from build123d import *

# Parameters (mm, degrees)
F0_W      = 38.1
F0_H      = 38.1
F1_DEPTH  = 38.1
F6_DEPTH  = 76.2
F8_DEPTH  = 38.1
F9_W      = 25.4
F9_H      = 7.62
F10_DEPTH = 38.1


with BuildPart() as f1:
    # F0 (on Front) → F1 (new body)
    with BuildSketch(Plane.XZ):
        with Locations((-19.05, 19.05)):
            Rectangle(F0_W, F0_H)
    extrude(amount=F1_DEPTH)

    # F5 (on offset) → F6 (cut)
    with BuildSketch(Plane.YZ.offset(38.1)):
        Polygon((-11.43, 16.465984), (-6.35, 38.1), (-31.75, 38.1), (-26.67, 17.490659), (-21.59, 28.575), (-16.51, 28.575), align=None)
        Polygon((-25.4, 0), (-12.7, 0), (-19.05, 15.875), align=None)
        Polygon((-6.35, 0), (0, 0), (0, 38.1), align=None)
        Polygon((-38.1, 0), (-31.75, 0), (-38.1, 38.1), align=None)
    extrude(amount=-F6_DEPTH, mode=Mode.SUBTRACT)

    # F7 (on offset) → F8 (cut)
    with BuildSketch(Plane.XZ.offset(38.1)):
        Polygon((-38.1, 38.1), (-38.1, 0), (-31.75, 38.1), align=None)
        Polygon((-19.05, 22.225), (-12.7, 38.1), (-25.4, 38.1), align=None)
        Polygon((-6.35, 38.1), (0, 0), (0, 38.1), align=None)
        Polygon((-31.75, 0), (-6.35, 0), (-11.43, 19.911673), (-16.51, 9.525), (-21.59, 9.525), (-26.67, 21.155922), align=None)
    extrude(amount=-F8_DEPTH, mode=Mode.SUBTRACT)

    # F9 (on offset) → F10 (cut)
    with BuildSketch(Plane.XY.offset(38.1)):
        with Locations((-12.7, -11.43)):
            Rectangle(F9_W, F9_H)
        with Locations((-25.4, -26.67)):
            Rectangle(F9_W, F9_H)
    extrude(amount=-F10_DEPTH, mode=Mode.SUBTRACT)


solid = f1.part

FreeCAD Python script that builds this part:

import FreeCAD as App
import Part
import Sketcher
Q = App.Units.Quantity


def add_polygon(sketch, points):
    """Adds a closed chain of lines whose ends are joined by coincident constraints."""
    first, n = sketch.GeometryCount, len(points)
    for a, b in zip(points, points[1:] + points[:1]):
        sketch.addGeometry(Part.LineSegment(App.Vector(*a, 0), App.Vector(*b, 0)), False)
    for i in range(n):
        sketch.addConstraint(Sketcher.Constraint("Coincident", first + i, 2, first + (i + 1) % n, 1))

doc = App.newDocument("Part")
body = doc.addObject("PartDesign::Body", "Body")

# Sketch on XZ plane
sketch1 = doc.addObject("Sketcher::SketchObject", "Sketch")
body.addObject(sketch1)
sketch1.AttachmentSupport = (doc.XZ_Plane, [""])
sketch1.MapMode = "FlatFace"
add_polygon(sketch1, [(-38.1, 38.1), (-38.1, 0), (0, 0), (0, 38.1)])  # lines 0-3
sketch1.addConstraint([
    Sketcher.Constraint("Vertical", 0),
    Sketcher.Constraint("Horizontal", 1),
    Sketcher.Constraint("Vertical", 2),
    Sketcher.Constraint("Horizontal", 3),
    Sketcher.Constraint("Coincident", 1, 2, -1, 1),
    Sketcher.Constraint("Equal", 3, 0),
    Sketcher.Constraint("DistanceX", 1, 1, 1, 2, Q("1.5 in")),
])
pad1 = doc.addObject("PartDesign::Pad", "Pad")
body.addObject(pad1)
pad1.Profile = sketch1
pad1.Length = Q("1.5 in")

# Sketch on YZ plane
sketch2 = doc.addObject("Sketcher::SketchObject", "Sketch001")
body.addObject(sketch2)
sketch2.AttachmentSupport = (doc.YZ_Plane, [""])
sketch2.MapMode = "FlatFace"
sketch2.AttachmentOffset = App.Placement(App.Vector(0, 0, 1.5 * 25.4), App.Rotation())
add_polygon(sketch2, [(-11.43, 16.465984), (-6.35, 38.1), (-31.75, 38.1), (-26.67, 17.490659), (-21.59, 28.575), (-16.51, 28.575)])  # lines 0-5
add_polygon(sketch2, [(-25.4, 0), (-12.7, 0), (-19.05, 15.875)])  # lines 6-8
add_polygon(sketch2, [(-6.35, 0), (0, 0), (0, 38.1)])  # lines 9-11
add_polygon(sketch2, [(-38.1, 0), (-31.75, 0), (-38.1, 38.1)])  # lines 12-14
sketch2.addConstraint([
    Sketcher.Constraint("Horizontal", 1),
    Sketcher.Constraint("Horizontal", 4),
    Sketcher.Constraint("Horizontal", 6),
    Sketcher.Constraint("Horizontal", 9),
    Sketcher.Constraint("Vertical", 10),
    Sketcher.Constraint("Horizontal", 12),
    Sketcher.Constraint("Vertical", 14),
    Sketcher.Constraint("Coincident", 9, 2, -1, 1),
    Sketcher.Constraint("PointOnObject", 6, 2, -1),
    Sketcher.Constraint("PointOnObject", 12, 2, -1),
    Sketcher.Constraint("Horizontal", 1, 2, 10, 2),
    Sketcher.Constraint("Horizontal", 10, 2, 13, 2),
    Sketcher.Constraint("Vertical", 0, 2, 11, 2),
    Sketcher.Constraint("Vertical", 1, 2, 12, 2),
    Sketcher.Constraint("Equal", 9, 12),
    Sketcher.Constraint("Equal", 7, 8),
    Sketcher.Constraint("DistanceX", 1, 2, 1, 1, Q("1 in")),
    Sketcher.Constraint("DistanceX", 4, 1, 4, 2, Q("0.2 in")),
    Sketcher.Constraint("DistanceX", 6, 1, 6, 2, Q("0.5 in")),
    Sketcher.Constraint("DistanceY", 10, 1, 10, 2, Q("1.5 in")),
    Sketcher.Constraint("DistanceX", 8, 2, -1, 1, Q("1 in")),
    Sketcher.Constraint("DistanceX", 14, 2, 6, 2, Q("1 in")),
    Sketcher.Constraint("DistanceX", 1, 2, 2, 2, Q("0.2 in")),
    Sketcher.Constraint("DistanceX", 2, 2, 3, 2, Q("0.2 in")),
    Sketcher.Constraint("DistanceX", 4, 2, 5, 2, Q("0.2 in")),
    Sketcher.Constraint("DistanceY", 7, 2, 3, 2, Q("0.5 in")),
    Sketcher.Constraint("DistanceY", -1, 1, 3, 2, Q("1.125 in")),
    Sketcher.Constraint("Distance", 3, 12.19299),
    Sketcher.Constraint("Distance", 5, 13.131438),
])
pocket1 = doc.addObject("PartDesign::Pocket", "Pocket")
body.addObject(pocket1)
pocket1.Profile = sketch2
pocket1.Length = Q("3 in")

# Sketch on XZ plane
sketch3 = doc.addObject("Sketcher::SketchObject", "Sketch002")
body.addObject(sketch3)
sketch3.AttachmentSupport = (doc.XZ_Plane, [""])
sketch3.MapMode = "FlatFace"
sketch3.AttachmentOffset = App.Placement(App.Vector(0, 0, 1.5 * 25.4), App.Rotation())
add_polygon(sketch3, [(-38.1, 38.1), (-38.1, 0), (-31.75, 38.1)])  # lines 0-2
add_polygon(sketch3, [(-19.05, 22.225), (-12.7, 38.1), (-25.4, 38.1)])  # lines 3-5
add_polygon(sketch3, [(-6.35, 38.1), (0, 0), (0, 38.1)])  # lines 6-8
add_polygon(sketch3, [(-31.75, 0), (-6.35, 0), (-11.43, 19.911673), (-16.51, 9.525), (-21.59, 9.525), (-26.67, 21.155922)])  # lines 9-14
sketch3.addConstraint([
    Sketcher.Constraint("Vertical", 0),
    Sketcher.Constraint("Horizontal", 2),
    Sketcher.Constraint("Horizontal", 4),
    Sketcher.Constraint("Vertical", 7),
    Sketcher.Constraint("Horizontal", 8),
    Sketcher.Constraint("Horizontal", 9),
    Sketcher.Constraint("Horizontal", 12),
    Sketcher.Constraint("Coincident", 6, 2, -1, 1),
    Sketcher.Constraint("PointOnObject", 0, 2, -1),
    Sketcher.Constraint("PointOnObject", 9, 2, -1),
    Sketcher.Constraint("Horizontal", 2, 2, 3, 2),
    Sketcher.Constraint("Horizontal", 4, 2, 7, 2),
    Sketcher.Constraint("Vertical", 8, 2, 9, 2),
    Sketcher.Constraint("Vertical", 1, 2, 14, 2),
    Sketcher.Constraint("Equal", 2, 8),
    Sketcher.Constraint("Equal", 3, 5),
    Sketcher.Constraint("DistanceX", 9, 1, 9, 2, Q("1 in")),
    Sketcher.Constraint("DistanceX", 4, 2, 4, 1, Q("0.5 in")),
    Sketcher.Constraint("DistanceX", 12, 2, 12, 1, Q("0.2 in")),
    Sketcher.Constraint("DistanceY", 0, 2, 0, 1, Q("1.5 in")),
    Sketcher.Constraint("DistanceX", 4, 2, -1, 1, Q("1 in")),
    Sketcher.Constraint("DistanceX", 2, 2, 3, 2, Q("1 in")),
    Sketcher.Constraint("DistanceX", 5, 2, 10, 2, Q("0.3 in")),
    Sketcher.Constraint("DistanceX", 11, 2, 10, 2, Q("0.2 in")),
    Sketcher.Constraint("DistanceY", 11, 2, 5, 2, Q("0.5 in")),
    Sketcher.Constraint("DistanceX", 13, 2, 5, 2, Q("0.3 in")),
    Sketcher.Constraint("DistanceY", -1, 1, 5, 2, Q("0.875 in")),
    Sketcher.Constraint("Distance", 10, 20.54948),
    Sketcher.Constraint("DistanceY", 13, 2, 5, 2, 1.069078),
])
pocket2 = doc.addObject("PartDesign::Pocket", "Pocket001")
body.addObject(pocket2)
pocket2.Profile = sketch3
pocket2.Length = Q("1.5 in")

# Sketch on XY plane
sketch4 = doc.addObject("Sketcher::SketchObject", "Sketch003")
body.addObject(sketch4)
sketch4.AttachmentSupport = (doc.XY_Plane, [""])
sketch4.MapMode = "FlatFace"
sketch4.AttachmentOffset = App.Placement(App.Vector(0, 0, 1.5 * 25.4), App.Rotation())
add_polygon(sketch4, [(-25.4, -7.62), (-25.4, -15.24), (0, -15.24), (0, -7.62)])  # lines 0-3
add_polygon(sketch4, [(-38.1, -22.86), (-38.1, -30.48), (-12.7, -30.48), (-12.7, -22.86)])  # lines 4-7
sketch4.addConstraint([
    Sketcher.Constraint("Vertical", 0),
    Sketcher.Constraint("Horizontal", 1),
    Sketcher.Constraint("Vertical", 2),
    Sketcher.Constraint("Horizontal", 3),
    Sketcher.Constraint("Vertical", 4),
    Sketcher.Constraint("Horizontal", 5),
    Sketcher.Constraint("Vertical", 6),
    Sketcher.Constraint("Horizontal", 7),
    Sketcher.Constraint("PointOnObject", 1, 2, -2),
    Sketcher.Constraint("Equal", 3, 5),
    Sketcher.Constraint("Equal", 2, 4),
    Sketcher.Constraint("DistanceX", 1, 1, 1, 2, Q("1 in")),
    Sketcher.Constraint("DistanceY", 0, 2, 0, 1, Q("0.3 in")),
    Sketcher.Constraint("DistanceY", 0, 2, -1, 1, Q("0.6 in")),
    Sketcher.Constraint("DistanceX", 4, 2, -1, 1, Q("1.5 in")),
    Sketcher.Constraint("DistanceY", 4, 2, -1, 1, Q("1.2 in")),
])
pocket3 = doc.addObject("PartDesign::Pocket", "Pocket002")
body.addObject(pocket3)
pocket3.Profile = sketch4
pocket3.Length = Q("1.5 in")

doc.recompute()
